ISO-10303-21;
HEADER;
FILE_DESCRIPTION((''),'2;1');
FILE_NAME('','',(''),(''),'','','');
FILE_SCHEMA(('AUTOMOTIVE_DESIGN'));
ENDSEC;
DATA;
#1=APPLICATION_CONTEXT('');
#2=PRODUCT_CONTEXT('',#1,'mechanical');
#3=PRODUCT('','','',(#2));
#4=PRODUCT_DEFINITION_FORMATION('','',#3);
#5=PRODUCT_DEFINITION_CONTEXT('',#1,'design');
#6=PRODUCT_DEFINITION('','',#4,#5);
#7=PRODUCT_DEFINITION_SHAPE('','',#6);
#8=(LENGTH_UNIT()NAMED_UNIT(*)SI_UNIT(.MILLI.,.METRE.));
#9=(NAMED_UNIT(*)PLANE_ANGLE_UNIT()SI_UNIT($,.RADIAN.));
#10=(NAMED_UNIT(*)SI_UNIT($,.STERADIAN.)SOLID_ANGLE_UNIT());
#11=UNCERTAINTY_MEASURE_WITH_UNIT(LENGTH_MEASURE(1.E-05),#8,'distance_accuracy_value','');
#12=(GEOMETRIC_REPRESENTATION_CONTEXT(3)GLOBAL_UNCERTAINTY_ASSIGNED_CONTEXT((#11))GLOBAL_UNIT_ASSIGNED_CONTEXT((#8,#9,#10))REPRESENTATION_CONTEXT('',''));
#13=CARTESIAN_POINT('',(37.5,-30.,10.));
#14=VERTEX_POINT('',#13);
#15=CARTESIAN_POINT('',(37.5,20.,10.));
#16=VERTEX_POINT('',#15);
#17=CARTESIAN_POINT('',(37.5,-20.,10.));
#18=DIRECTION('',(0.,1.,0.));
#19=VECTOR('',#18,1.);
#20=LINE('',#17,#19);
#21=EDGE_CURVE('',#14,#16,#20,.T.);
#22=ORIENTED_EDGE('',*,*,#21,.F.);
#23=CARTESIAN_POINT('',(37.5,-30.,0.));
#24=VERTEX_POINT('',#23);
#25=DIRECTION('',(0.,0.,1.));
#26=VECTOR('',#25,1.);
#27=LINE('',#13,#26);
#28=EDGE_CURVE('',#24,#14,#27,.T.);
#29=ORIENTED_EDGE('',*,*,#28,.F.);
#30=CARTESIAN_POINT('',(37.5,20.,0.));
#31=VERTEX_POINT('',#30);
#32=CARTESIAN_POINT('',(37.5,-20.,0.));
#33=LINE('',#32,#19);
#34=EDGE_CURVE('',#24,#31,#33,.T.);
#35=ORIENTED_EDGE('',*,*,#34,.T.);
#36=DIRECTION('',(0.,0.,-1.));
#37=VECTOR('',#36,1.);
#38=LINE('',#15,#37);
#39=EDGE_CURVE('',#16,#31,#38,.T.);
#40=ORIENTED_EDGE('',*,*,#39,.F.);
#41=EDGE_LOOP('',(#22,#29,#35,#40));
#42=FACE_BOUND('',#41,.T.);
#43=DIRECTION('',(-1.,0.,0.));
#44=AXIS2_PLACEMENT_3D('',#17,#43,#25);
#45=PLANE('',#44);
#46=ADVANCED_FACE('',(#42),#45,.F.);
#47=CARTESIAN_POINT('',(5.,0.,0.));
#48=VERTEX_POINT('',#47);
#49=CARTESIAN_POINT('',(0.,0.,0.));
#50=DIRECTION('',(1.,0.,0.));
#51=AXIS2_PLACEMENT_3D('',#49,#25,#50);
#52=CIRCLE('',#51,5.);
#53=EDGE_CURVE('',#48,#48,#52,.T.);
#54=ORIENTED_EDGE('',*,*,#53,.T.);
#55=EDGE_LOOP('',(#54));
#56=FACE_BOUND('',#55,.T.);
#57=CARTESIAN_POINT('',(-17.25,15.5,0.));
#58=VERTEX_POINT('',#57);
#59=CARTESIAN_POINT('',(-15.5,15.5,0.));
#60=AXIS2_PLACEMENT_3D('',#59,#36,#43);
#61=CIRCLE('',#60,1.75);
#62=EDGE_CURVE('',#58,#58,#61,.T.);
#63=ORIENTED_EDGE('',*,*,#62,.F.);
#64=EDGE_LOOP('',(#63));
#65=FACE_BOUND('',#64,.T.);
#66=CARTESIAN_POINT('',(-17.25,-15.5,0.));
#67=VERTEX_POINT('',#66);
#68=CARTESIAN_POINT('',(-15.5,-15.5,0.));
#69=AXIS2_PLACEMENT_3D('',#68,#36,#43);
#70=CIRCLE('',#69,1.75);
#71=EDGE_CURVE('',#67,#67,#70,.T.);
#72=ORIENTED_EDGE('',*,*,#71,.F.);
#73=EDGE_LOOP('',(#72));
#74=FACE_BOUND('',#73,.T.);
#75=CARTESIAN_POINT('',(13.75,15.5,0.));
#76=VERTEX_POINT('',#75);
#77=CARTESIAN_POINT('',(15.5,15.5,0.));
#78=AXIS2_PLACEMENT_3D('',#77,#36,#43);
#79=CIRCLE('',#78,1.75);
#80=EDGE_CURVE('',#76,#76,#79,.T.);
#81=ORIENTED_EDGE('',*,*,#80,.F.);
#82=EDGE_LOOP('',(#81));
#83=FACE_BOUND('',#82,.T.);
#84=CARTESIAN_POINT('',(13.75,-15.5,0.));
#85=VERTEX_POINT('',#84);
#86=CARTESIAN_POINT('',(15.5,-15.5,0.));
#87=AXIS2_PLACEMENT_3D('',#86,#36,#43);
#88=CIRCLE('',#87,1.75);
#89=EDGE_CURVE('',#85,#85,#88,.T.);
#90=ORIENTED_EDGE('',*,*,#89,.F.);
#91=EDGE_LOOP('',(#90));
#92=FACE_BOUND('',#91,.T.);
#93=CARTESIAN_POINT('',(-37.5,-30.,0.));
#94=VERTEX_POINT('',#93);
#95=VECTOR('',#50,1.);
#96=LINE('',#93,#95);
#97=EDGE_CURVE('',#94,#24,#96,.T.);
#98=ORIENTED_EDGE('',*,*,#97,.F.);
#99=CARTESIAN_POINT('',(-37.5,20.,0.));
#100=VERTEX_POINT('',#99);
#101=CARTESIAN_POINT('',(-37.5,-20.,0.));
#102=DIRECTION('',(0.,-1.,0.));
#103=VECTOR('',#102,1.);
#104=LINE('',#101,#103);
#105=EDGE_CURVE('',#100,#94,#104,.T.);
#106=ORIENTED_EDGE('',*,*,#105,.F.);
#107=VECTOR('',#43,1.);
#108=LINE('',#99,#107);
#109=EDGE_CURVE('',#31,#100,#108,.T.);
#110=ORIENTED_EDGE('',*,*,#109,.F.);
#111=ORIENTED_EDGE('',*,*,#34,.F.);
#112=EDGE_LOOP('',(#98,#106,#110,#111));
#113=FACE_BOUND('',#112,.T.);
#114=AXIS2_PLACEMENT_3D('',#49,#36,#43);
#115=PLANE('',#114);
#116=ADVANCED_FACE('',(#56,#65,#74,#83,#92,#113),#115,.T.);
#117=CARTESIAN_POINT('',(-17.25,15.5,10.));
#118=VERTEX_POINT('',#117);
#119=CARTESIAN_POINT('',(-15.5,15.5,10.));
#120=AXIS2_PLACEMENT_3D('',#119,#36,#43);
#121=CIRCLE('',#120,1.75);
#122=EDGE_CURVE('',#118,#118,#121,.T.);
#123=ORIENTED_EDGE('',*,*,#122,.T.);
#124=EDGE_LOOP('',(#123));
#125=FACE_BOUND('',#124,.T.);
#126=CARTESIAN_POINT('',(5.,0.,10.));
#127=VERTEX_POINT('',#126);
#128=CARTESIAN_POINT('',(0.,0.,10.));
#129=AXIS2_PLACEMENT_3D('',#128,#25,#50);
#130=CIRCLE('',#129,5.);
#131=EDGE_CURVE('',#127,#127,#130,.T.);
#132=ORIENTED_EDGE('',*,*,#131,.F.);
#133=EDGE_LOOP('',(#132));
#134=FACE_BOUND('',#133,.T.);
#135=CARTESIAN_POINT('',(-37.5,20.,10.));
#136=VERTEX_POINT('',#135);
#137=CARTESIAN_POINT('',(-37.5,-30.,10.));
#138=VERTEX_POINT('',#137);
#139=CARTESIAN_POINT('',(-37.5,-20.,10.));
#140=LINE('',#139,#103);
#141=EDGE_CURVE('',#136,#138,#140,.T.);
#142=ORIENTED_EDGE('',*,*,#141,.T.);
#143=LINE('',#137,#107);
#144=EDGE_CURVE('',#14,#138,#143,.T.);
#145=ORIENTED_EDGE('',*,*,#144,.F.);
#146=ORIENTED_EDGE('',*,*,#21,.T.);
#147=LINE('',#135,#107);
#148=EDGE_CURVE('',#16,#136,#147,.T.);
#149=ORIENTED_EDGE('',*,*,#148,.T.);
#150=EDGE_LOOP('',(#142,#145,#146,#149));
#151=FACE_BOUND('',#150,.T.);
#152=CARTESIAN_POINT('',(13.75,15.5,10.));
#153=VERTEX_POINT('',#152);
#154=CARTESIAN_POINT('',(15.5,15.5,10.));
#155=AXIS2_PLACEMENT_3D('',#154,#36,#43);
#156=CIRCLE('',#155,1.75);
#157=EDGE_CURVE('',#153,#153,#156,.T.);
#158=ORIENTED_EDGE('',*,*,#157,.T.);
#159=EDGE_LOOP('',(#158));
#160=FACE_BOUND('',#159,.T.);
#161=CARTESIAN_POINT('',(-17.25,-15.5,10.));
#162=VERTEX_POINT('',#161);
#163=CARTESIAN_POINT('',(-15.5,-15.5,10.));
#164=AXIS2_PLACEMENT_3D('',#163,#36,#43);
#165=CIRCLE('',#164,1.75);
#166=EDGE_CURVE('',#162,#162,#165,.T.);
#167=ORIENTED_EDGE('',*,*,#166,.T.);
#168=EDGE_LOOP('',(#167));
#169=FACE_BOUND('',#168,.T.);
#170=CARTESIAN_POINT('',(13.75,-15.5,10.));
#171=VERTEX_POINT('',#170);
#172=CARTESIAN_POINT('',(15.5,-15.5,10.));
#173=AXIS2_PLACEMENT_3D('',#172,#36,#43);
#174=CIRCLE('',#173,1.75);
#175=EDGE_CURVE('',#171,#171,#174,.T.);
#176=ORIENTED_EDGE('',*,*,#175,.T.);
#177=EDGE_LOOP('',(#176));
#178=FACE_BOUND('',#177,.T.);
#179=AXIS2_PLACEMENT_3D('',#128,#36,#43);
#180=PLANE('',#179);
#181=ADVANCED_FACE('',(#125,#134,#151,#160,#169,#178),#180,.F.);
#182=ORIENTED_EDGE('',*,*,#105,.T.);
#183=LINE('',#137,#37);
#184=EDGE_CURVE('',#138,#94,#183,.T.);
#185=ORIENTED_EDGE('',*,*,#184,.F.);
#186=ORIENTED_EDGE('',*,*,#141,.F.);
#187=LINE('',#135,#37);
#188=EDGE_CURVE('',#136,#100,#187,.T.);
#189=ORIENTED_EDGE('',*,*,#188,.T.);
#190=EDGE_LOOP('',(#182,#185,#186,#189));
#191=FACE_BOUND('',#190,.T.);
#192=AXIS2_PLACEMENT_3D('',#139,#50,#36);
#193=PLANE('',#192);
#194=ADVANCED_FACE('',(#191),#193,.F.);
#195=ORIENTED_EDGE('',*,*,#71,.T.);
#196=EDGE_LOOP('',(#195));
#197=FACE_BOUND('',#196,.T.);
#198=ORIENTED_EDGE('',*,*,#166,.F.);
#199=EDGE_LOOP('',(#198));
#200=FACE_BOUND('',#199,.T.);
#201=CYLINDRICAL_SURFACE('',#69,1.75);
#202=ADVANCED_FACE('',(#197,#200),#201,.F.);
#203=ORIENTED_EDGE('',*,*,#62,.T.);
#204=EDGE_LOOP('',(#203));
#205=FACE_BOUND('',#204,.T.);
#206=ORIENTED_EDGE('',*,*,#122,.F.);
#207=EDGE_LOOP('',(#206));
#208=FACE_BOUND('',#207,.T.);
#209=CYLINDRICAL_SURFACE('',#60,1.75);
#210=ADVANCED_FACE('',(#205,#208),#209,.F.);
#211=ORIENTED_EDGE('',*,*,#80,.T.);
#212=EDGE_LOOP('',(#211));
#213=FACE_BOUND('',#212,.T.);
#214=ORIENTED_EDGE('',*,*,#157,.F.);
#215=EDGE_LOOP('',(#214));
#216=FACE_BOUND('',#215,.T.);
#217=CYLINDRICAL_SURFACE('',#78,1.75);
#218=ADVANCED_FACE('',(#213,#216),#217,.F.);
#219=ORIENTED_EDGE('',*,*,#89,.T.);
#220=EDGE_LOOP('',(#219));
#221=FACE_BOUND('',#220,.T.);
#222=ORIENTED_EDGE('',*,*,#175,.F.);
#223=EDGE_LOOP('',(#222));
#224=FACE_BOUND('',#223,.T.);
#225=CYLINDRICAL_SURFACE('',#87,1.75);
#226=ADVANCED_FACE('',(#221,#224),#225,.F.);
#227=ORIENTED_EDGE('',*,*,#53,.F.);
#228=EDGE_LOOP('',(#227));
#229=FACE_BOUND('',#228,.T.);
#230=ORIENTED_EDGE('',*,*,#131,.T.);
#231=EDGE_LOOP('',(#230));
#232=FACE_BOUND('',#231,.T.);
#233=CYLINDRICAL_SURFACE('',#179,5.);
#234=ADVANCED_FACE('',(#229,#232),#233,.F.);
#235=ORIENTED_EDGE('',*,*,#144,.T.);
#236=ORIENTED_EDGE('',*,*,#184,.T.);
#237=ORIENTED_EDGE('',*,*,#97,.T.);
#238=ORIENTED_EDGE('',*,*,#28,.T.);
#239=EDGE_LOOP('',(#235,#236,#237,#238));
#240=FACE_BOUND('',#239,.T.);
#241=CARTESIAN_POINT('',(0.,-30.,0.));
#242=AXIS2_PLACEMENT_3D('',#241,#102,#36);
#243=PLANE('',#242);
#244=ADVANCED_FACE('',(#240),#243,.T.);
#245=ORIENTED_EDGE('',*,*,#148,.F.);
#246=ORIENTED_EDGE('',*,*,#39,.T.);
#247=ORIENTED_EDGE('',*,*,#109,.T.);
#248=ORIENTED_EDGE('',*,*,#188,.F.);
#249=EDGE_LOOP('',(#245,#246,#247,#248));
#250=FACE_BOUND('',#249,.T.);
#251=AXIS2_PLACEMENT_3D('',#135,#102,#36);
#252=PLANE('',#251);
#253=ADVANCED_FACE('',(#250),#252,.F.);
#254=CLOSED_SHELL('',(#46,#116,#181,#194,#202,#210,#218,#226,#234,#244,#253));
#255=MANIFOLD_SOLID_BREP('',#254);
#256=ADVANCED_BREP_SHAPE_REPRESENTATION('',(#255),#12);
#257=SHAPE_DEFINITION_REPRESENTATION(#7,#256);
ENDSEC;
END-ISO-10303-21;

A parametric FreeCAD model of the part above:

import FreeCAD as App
import Part
import Sketcher


def add_polygon(sketch, points):
    """Adds a closed chain of lines whose ends are joined by coincident constraints."""
    first, n = sketch.GeometryCount, len(points)
    for a, b in zip(points, points[1:] + points[:1]):
        sketch.addGeometry(Part.LineSegment(App.Vector(*a, 0), App.Vector(*b, 0)), False)
    for i in range(n):
        sketch.addConstraint(Sketcher.Constraint("Coincident", first + i, 2, first + (i + 1) % n, 1))

doc = App.newDocument("Part")
body = doc.addObject("PartDesign::Body", "Body")

# Sketch on XY plane
sketch1 = doc.addObject("Sketcher::SketchObject", "Sketch")
body.addObject(sketch1)
sketch1.AttachmentSupport = (doc.XY_Plane, [""])
sketch1.MapMode = "FlatFace"
add_polygon(sketch1, [(-38, 20), (-38, -20), (38, -20), (38, 20)])  # lines 0-3
sketch1.addGeometry(Part.Circle(App.Vector(0, 0, 0), App.Vector(0, 0, 1), 5), False)  # 4
sketch1.addConstraint(Sketcher.Constraint("Vertical", 0))
sketch1.addConstraint(Sketcher.Constraint("Horizontal", 1))
sketch1.addConstraint(Sketcher.Constraint("Vertical", 2))
sketch1.addConstraint(Sketcher.Constraint("Horizontal", 3))
sketch1.addConstraint(Sketcher.Constraint("Coincident", 4, 3, -1, 1))
sketch1.addConstraint(Sketcher.Constraint("Symmetric", 0, 2, 2, 2, -1, 1))
sketch1.addConstraint(Sketcher.Constraint("Diameter", 4, 10.0))
sketch1.addConstraint(Sketcher.Constraint("DistanceX", 1, 1, 1, 2, 75.0))
sketch1.addConstraint(Sketcher.Constraint("DistanceY", 0, 2, 0, 1, 40.0))
pad1 = doc.addObject("PartDesign::Pad", "Pad")
body.addObject(pad1)
pad1.Profile = sketch1
pad1.Length = 10

# Sketch on XY plane
sketch2 = doc.addObject("Sketcher::SketchObject", "Sketch001")
body.addObject(sketch2)
sketch2.AttachmentSupport = (doc.XY_Plane, [""])
sketch2.MapMode = "FlatFace"
sketch2.addGeometry(Part.Circle(App.Vector(-15.5, 15.5, 0), App.Vector(0, 0, 1), 1.8), False)
sketch2.addGeometry(Part.Circle(App.Vector(15.5, 15.5, 0), App.Vector(0, 0, 1), 1.8), False)
sketch2.addGeometry(Part.Circle(App.Vector(15.5, -15.5, 0), App.Vector(0, 0, 1), 1.8), False)
sketch2.addGeometry(Part.Circle(App.Vector(-15.5, -15.5, 0), App.Vector(0, 0, 1), 1.8), False)
sketch2.addConstraint(Sketcher.Constraint("Equal", 0, 1))
sketch2.addConstraint(Sketcher.Constraint("Equal", 1, 2))
sketch2.addConstraint(Sketcher.Constraint("Equal", 2, 3))
sketch2.addConstraint(Sketcher.Constraint("Symmetric", 0, 3, 2, 3, -1, 1))
sketch2.addConstraint(Sketcher.Constraint("Symmetric", 1, 3, 3, 3, -1, 1))
sketch2.addConstraint(Sketcher.Constraint("Symmetric", 0, 3, 1, 3, -2))
sketch2.addConstraint(Sketcher.Constraint("Diameter", 0, 3.5))
sketch2.addConstraint(Sketcher.Constraint("DistanceX", 0, 3, 1, 3, 31.0))
sketch2.addConstraint(Sketcher.Constraint("DistanceY", 2, 3, 1, 3, 31.0))
doc.recompute()
hole = doc.addObject("PartDesign::Hole", "Hole")
body.addObject(hole)
hole.Profile = sketch2
hole.ThreadType = "None"
hole.Diameter = 3.5
hole.DepthType = "ThroughAll"
hole.Reversed = True

# Sketch on XZ plane
sketch3 = doc.addObject("Sketcher::SketchObject", "Sketch002")
body.addObject(sketch3)
sketch3.AttachmentSupport = (doc.XZ_Plane, [""])
sketch3.MapMode = "FlatFace"
sketch3.AttachmentOffset = App.Placement(App.Vector(0, 0, 20), App.Rotation())
add_polygon(sketch3, [(-38, 10), (-38, 0), (38, 0), (38, 10)])  # lines 0-3
sketch3.addConstraint(Sketcher.Constraint("Vertical", 0))
sketch3.addConstraint(Sketcher.Constraint("Horizontal", 1))
sketch3.addConstraint(Sketcher.Constraint("Vertical", 2))
sketch3.addConstraint(Sketcher.Constraint("Horizontal", 3))
sketch3.addConstraint(Sketcher.Constraint("Symmetric", 0, 2, 1, 2, -1, 1))
sketch3.addConstraint(Sketcher.Constraint("DistanceX", 1, 1, 1, 2, 75.0))
sketch3.addConstraint(Sketcher.Constraint("DistanceY", 0, 2, 0, 1, 10.0))
pad2 = doc.addObject("PartDesign::Pad", "Pad001")
body.addObject(pad2)
pad2.Profile = sketch3
pad2.Length = 10

doc.recompute()
